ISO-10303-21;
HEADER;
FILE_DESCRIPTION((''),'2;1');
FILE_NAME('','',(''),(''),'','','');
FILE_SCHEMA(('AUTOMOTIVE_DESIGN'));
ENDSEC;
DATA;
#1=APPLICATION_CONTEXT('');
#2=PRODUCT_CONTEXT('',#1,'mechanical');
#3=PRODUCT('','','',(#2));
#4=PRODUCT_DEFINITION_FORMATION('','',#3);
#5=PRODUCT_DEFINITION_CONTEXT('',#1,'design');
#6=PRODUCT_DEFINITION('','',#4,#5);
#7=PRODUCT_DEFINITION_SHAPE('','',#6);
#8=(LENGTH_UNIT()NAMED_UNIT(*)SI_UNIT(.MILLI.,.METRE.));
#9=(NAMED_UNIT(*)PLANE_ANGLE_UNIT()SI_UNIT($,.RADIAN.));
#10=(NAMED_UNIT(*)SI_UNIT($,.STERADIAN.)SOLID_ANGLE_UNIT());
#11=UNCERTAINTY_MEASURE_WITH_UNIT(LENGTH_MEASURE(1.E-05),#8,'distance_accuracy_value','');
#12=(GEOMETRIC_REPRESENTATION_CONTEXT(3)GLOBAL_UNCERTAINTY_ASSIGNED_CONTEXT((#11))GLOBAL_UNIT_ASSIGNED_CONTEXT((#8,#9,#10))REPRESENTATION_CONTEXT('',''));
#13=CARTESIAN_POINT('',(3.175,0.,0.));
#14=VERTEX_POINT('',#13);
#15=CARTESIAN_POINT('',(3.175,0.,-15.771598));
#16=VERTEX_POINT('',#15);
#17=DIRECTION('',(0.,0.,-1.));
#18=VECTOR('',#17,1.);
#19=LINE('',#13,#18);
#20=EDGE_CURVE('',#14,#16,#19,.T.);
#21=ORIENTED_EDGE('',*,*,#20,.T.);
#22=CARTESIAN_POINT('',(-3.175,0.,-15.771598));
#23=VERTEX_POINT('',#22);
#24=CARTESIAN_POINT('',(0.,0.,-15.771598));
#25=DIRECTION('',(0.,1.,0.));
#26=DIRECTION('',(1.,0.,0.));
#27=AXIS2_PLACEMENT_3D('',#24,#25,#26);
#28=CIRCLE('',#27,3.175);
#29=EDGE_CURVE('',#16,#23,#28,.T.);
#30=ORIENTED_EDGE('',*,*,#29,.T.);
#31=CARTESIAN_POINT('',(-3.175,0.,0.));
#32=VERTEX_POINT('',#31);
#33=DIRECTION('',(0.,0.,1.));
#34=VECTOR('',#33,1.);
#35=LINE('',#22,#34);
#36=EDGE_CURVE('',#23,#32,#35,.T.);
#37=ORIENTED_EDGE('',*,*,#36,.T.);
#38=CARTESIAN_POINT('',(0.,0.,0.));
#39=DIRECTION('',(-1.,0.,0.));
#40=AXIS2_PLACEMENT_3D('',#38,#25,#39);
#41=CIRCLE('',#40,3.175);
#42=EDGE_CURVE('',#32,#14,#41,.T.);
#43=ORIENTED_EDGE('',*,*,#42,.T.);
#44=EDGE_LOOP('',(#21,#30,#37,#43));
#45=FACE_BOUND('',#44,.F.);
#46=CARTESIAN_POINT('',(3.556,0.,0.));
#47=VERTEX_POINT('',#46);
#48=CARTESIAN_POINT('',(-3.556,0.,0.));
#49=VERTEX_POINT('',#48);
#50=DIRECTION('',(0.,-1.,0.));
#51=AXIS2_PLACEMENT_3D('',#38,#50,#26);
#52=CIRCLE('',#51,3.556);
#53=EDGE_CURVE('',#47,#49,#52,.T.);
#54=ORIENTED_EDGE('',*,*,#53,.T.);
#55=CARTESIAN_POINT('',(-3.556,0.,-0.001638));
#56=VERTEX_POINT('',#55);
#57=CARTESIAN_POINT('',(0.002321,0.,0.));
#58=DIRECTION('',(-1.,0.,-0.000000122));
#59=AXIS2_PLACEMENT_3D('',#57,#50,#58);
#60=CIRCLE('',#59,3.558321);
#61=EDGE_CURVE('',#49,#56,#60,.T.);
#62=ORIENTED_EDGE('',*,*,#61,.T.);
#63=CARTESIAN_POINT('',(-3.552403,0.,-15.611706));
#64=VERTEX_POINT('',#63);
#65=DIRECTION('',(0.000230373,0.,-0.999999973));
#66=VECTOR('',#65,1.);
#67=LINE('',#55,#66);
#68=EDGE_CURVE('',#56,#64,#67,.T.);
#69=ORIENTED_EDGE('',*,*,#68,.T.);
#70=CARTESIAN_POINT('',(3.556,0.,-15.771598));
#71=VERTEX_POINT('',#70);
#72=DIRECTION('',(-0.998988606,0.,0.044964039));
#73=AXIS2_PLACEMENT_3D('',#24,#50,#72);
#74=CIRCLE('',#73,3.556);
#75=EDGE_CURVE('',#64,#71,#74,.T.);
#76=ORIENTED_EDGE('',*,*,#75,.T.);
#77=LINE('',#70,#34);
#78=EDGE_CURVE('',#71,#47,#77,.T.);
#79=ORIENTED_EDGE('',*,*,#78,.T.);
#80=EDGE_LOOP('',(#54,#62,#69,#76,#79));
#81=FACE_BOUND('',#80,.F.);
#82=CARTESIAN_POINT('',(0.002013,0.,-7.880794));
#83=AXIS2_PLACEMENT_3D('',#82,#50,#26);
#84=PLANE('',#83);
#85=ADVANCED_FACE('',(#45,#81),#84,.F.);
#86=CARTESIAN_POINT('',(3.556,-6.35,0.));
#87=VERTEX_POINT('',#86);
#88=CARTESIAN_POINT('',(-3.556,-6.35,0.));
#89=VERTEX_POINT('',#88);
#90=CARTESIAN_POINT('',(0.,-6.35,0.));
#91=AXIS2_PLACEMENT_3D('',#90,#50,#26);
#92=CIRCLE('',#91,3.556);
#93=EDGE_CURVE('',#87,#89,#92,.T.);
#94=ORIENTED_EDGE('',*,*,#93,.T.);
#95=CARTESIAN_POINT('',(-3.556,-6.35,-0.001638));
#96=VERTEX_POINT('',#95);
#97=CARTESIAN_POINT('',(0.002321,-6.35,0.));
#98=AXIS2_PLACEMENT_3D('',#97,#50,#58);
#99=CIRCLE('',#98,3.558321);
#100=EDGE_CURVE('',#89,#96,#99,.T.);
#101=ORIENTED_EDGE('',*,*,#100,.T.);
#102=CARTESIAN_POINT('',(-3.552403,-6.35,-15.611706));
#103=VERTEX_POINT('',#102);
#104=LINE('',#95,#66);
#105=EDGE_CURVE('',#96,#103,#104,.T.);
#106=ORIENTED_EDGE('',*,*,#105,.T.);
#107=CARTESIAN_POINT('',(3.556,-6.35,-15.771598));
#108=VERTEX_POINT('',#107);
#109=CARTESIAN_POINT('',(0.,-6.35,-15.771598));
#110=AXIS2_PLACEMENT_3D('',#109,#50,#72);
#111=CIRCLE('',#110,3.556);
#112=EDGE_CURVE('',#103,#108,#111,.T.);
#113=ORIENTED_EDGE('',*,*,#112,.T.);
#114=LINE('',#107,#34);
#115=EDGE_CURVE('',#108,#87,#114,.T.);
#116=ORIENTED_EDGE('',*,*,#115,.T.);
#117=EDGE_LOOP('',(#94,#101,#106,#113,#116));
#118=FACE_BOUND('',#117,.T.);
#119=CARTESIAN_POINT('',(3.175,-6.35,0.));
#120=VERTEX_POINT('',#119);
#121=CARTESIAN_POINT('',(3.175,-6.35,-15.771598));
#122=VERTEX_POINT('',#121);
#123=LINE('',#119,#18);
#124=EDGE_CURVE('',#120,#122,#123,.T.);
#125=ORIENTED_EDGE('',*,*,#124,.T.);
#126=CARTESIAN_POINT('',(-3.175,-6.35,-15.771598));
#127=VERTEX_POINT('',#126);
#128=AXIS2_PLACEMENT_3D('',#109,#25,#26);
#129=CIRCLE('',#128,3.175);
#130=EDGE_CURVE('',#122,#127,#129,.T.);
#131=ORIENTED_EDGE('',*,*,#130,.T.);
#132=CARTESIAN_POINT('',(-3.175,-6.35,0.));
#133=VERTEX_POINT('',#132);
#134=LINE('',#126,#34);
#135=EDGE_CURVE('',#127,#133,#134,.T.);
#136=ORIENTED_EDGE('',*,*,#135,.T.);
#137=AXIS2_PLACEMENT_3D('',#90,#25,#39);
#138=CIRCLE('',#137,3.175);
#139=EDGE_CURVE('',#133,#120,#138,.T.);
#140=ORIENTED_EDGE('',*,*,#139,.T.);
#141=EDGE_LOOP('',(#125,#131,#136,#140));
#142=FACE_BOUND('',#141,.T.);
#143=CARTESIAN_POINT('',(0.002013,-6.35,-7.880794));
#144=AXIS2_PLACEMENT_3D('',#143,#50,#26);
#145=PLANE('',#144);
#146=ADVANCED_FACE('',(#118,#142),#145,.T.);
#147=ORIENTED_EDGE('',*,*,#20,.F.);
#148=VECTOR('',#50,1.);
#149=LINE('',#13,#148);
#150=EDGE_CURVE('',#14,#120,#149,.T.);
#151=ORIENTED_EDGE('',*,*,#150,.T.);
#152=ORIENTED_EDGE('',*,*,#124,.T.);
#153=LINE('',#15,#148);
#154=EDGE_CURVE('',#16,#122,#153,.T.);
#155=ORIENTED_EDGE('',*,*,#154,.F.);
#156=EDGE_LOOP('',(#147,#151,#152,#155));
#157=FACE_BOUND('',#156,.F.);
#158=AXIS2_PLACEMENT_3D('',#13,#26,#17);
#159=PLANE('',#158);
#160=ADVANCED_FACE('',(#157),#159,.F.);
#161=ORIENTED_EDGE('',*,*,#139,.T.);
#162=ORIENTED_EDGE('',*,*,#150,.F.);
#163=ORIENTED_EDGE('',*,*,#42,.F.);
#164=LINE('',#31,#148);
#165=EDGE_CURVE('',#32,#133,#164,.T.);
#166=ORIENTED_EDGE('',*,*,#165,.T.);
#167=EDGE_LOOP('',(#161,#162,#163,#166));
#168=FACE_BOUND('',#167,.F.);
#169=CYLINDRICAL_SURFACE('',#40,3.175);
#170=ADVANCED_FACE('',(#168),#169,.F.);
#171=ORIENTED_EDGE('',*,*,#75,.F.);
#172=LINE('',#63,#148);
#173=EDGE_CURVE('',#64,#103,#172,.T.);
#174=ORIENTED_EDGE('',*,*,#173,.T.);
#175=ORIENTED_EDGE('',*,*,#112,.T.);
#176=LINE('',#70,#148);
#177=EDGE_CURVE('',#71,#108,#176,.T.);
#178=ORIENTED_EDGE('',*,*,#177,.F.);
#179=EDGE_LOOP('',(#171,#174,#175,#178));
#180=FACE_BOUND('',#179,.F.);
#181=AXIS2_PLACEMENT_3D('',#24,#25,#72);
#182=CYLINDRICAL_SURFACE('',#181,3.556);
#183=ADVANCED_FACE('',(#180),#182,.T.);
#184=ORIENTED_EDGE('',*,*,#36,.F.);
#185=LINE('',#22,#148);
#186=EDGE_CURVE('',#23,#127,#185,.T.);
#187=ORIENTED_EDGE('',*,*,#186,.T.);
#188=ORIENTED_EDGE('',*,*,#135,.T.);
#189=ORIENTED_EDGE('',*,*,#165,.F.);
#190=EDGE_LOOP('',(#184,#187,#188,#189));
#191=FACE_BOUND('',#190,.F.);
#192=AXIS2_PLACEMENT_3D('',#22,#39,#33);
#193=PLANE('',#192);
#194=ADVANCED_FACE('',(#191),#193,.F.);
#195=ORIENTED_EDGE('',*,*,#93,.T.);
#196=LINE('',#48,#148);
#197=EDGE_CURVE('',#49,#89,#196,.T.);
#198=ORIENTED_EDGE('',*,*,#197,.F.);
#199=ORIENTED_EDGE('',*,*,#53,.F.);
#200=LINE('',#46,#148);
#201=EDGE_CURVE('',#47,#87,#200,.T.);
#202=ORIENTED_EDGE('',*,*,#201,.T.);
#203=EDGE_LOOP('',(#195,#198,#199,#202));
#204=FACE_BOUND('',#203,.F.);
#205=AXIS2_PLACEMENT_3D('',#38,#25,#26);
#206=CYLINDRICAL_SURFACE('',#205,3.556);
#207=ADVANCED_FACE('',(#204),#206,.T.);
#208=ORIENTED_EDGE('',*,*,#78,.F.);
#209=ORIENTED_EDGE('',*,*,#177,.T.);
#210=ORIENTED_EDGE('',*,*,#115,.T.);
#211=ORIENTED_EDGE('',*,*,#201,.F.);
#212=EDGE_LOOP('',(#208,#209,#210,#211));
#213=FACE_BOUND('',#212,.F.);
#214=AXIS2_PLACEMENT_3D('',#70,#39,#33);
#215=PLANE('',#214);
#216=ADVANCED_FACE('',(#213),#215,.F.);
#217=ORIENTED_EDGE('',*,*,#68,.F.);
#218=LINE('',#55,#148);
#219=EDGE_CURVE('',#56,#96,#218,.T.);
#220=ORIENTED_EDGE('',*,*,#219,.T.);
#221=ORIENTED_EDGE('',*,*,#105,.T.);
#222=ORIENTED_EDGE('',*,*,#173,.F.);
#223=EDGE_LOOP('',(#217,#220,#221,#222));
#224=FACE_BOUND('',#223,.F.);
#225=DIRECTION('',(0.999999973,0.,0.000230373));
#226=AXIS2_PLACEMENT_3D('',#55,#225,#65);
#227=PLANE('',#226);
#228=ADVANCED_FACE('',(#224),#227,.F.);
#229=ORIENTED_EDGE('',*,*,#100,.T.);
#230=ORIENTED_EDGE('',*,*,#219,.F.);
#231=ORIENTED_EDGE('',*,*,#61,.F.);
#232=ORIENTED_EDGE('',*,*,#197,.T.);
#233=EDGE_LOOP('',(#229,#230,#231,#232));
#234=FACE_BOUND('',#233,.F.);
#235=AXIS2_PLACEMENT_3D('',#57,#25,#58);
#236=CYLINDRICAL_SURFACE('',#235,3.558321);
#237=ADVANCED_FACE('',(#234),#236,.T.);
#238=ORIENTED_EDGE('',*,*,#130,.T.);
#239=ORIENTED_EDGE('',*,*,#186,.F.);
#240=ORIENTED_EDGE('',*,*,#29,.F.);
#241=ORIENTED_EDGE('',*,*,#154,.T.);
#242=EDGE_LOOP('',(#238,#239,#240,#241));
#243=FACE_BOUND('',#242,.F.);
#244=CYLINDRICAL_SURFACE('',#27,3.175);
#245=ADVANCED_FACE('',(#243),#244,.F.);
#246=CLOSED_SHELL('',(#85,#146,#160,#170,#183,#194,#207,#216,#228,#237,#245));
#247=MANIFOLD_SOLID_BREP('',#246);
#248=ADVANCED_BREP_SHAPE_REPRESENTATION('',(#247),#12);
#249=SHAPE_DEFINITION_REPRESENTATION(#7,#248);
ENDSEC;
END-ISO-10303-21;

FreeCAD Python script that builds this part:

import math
import FreeCAD as App
import Part
import Sketcher
from FreeCAD import Vector
Q = App.Units.Quantity

doc = App.newDocument("Part")
params = doc.addObject("Spreadsheet::Sheet", "Params")
for row, (alias, value) in enumerate([
    ("sketch1_radius", "0.14 in"),
    ("sketch1_radius2", "0.125 in"),
    ("pad1_length", "0.25 in"),
], start=1):
    params.set(f"A{row}", alias)
    params.set(f"B{row}", "=" + value)
    params.setAlias(f"B{row}", alias)

body = doc.addObject("PartDesign::Body", "Body")

sketch1 = body.newObject("Sketcher::SketchObject", "Sketch")
sketch1.AttachmentSupport = (doc.getObject("XZ_Plane"), [""])
sketch1.MapMode = "FlatFace"
sketch1.addGeometry([
    Part.LineSegment(Vector(3.556, -15.771598, 0), Vector(3.556, 0, 0)),
    Part.ArcOfCircle(Part.Circle(Vector(0, 0, 0), Vector(0, 0, 1), 3.556), math.radians(0), math.radians(180)),
    Part.ArcOfCircle(Part.Circle(Vector(0.002321, 0, 0), Vector(0, 0, 1), 3.558321), math.radians(-179.999993), math.radians(-179.973611)),
    Part.LineSegment(Vector(-3.556, -0.001638, 0), Vector(-3.552403, -15.611706, 0)),
    Part.ArcOfCircle(Part.Circle(Vector(0, -15.771598, 0), Vector(0, 0, 1), 3.556), math.radians(177.422881), math.radians(360)),
    Part.LineSegment(Vector(-3.175, -15.771598, 0), Vector(-3.175, 0, 0)),
    Part.ArcOfCircle(Part.Circle(Vector(0, 0, 0), Vector(0, 0, 1), 3.175), math.radians(0), math.radians(180)),
    Part.LineSegment(Vector(3.175, 0, 0), Vector(3.175, -15.771598, 0)),
    Part.ArcOfCircle(Part.Circle(Vector(0, -15.771598, 0), Vector(0, 0, 1), 3.175), math.radians(180), math.radians(360)),
], False)
sketch1.addConstraint([
    Sketcher.Constraint("Tangent", 0, 2, 1, 1),
    Sketcher.Constraint("Tangent", 1, 2, 2, 1),
    Sketcher.Constraint("Coincident", 2, 2, 3, 1),
    Sketcher.Constraint("Coincident", 3, 2, 4, 1),
    Sketcher.Constraint("Tangent", 4, 2, 0, 1),
    Sketcher.Constraint("Tangent", 5, 2, 6, 2),
    Sketcher.Constraint("Tangent", 6, 1, 7, 1),
    Sketcher.Constraint("Tangent", 7, 2, 8, 2),
    Sketcher.Constraint("Tangent", 8, 1, 5, 1),
    Sketcher.Constraint("Vertical", 0),
    Sketcher.Constraint("Vertical", 5),
    Sketcher.Constraint("Vertical", 7),
    Sketcher.Constraint("Coincident", 1, 3, -1, 1),
    Sketcher.Constraint("Coincident", 6, 3, -1, 1),
    Sketcher.Constraint("Coincident", 8, 3, 4, 3),
    Sketcher.Constraint("PointOnObject", 1, 2, -1),
    Sketcher.Constraint("Radius", 1, Q("0.14 in")),
    Sketcher.Constraint("Radius", 6, Q("0.125 in")),
    Sketcher.Constraint("Radius", 2, 3.558321),
    Sketcher.Constraint("DistanceY", 0, 1, 0, 2, 15.771598),
    Sketcher.Constraint("Distance", 3, 15.610068),
    Sketcher.Constraint("DistanceY", 2, 2, -1, 1, 0.001638),
])
sketch1.setExpression("Constraints[16]", "Params.sketch1_radius")
sketch1.setExpression("Constraints[17]", "Params.sketch1_radius2")
pad1 = body.newObject("PartDesign::Pad", "Pad")
pad1.Profile = sketch1
pad1.setExpression("Length", "Params.pad1_length")

doc.recompute()
